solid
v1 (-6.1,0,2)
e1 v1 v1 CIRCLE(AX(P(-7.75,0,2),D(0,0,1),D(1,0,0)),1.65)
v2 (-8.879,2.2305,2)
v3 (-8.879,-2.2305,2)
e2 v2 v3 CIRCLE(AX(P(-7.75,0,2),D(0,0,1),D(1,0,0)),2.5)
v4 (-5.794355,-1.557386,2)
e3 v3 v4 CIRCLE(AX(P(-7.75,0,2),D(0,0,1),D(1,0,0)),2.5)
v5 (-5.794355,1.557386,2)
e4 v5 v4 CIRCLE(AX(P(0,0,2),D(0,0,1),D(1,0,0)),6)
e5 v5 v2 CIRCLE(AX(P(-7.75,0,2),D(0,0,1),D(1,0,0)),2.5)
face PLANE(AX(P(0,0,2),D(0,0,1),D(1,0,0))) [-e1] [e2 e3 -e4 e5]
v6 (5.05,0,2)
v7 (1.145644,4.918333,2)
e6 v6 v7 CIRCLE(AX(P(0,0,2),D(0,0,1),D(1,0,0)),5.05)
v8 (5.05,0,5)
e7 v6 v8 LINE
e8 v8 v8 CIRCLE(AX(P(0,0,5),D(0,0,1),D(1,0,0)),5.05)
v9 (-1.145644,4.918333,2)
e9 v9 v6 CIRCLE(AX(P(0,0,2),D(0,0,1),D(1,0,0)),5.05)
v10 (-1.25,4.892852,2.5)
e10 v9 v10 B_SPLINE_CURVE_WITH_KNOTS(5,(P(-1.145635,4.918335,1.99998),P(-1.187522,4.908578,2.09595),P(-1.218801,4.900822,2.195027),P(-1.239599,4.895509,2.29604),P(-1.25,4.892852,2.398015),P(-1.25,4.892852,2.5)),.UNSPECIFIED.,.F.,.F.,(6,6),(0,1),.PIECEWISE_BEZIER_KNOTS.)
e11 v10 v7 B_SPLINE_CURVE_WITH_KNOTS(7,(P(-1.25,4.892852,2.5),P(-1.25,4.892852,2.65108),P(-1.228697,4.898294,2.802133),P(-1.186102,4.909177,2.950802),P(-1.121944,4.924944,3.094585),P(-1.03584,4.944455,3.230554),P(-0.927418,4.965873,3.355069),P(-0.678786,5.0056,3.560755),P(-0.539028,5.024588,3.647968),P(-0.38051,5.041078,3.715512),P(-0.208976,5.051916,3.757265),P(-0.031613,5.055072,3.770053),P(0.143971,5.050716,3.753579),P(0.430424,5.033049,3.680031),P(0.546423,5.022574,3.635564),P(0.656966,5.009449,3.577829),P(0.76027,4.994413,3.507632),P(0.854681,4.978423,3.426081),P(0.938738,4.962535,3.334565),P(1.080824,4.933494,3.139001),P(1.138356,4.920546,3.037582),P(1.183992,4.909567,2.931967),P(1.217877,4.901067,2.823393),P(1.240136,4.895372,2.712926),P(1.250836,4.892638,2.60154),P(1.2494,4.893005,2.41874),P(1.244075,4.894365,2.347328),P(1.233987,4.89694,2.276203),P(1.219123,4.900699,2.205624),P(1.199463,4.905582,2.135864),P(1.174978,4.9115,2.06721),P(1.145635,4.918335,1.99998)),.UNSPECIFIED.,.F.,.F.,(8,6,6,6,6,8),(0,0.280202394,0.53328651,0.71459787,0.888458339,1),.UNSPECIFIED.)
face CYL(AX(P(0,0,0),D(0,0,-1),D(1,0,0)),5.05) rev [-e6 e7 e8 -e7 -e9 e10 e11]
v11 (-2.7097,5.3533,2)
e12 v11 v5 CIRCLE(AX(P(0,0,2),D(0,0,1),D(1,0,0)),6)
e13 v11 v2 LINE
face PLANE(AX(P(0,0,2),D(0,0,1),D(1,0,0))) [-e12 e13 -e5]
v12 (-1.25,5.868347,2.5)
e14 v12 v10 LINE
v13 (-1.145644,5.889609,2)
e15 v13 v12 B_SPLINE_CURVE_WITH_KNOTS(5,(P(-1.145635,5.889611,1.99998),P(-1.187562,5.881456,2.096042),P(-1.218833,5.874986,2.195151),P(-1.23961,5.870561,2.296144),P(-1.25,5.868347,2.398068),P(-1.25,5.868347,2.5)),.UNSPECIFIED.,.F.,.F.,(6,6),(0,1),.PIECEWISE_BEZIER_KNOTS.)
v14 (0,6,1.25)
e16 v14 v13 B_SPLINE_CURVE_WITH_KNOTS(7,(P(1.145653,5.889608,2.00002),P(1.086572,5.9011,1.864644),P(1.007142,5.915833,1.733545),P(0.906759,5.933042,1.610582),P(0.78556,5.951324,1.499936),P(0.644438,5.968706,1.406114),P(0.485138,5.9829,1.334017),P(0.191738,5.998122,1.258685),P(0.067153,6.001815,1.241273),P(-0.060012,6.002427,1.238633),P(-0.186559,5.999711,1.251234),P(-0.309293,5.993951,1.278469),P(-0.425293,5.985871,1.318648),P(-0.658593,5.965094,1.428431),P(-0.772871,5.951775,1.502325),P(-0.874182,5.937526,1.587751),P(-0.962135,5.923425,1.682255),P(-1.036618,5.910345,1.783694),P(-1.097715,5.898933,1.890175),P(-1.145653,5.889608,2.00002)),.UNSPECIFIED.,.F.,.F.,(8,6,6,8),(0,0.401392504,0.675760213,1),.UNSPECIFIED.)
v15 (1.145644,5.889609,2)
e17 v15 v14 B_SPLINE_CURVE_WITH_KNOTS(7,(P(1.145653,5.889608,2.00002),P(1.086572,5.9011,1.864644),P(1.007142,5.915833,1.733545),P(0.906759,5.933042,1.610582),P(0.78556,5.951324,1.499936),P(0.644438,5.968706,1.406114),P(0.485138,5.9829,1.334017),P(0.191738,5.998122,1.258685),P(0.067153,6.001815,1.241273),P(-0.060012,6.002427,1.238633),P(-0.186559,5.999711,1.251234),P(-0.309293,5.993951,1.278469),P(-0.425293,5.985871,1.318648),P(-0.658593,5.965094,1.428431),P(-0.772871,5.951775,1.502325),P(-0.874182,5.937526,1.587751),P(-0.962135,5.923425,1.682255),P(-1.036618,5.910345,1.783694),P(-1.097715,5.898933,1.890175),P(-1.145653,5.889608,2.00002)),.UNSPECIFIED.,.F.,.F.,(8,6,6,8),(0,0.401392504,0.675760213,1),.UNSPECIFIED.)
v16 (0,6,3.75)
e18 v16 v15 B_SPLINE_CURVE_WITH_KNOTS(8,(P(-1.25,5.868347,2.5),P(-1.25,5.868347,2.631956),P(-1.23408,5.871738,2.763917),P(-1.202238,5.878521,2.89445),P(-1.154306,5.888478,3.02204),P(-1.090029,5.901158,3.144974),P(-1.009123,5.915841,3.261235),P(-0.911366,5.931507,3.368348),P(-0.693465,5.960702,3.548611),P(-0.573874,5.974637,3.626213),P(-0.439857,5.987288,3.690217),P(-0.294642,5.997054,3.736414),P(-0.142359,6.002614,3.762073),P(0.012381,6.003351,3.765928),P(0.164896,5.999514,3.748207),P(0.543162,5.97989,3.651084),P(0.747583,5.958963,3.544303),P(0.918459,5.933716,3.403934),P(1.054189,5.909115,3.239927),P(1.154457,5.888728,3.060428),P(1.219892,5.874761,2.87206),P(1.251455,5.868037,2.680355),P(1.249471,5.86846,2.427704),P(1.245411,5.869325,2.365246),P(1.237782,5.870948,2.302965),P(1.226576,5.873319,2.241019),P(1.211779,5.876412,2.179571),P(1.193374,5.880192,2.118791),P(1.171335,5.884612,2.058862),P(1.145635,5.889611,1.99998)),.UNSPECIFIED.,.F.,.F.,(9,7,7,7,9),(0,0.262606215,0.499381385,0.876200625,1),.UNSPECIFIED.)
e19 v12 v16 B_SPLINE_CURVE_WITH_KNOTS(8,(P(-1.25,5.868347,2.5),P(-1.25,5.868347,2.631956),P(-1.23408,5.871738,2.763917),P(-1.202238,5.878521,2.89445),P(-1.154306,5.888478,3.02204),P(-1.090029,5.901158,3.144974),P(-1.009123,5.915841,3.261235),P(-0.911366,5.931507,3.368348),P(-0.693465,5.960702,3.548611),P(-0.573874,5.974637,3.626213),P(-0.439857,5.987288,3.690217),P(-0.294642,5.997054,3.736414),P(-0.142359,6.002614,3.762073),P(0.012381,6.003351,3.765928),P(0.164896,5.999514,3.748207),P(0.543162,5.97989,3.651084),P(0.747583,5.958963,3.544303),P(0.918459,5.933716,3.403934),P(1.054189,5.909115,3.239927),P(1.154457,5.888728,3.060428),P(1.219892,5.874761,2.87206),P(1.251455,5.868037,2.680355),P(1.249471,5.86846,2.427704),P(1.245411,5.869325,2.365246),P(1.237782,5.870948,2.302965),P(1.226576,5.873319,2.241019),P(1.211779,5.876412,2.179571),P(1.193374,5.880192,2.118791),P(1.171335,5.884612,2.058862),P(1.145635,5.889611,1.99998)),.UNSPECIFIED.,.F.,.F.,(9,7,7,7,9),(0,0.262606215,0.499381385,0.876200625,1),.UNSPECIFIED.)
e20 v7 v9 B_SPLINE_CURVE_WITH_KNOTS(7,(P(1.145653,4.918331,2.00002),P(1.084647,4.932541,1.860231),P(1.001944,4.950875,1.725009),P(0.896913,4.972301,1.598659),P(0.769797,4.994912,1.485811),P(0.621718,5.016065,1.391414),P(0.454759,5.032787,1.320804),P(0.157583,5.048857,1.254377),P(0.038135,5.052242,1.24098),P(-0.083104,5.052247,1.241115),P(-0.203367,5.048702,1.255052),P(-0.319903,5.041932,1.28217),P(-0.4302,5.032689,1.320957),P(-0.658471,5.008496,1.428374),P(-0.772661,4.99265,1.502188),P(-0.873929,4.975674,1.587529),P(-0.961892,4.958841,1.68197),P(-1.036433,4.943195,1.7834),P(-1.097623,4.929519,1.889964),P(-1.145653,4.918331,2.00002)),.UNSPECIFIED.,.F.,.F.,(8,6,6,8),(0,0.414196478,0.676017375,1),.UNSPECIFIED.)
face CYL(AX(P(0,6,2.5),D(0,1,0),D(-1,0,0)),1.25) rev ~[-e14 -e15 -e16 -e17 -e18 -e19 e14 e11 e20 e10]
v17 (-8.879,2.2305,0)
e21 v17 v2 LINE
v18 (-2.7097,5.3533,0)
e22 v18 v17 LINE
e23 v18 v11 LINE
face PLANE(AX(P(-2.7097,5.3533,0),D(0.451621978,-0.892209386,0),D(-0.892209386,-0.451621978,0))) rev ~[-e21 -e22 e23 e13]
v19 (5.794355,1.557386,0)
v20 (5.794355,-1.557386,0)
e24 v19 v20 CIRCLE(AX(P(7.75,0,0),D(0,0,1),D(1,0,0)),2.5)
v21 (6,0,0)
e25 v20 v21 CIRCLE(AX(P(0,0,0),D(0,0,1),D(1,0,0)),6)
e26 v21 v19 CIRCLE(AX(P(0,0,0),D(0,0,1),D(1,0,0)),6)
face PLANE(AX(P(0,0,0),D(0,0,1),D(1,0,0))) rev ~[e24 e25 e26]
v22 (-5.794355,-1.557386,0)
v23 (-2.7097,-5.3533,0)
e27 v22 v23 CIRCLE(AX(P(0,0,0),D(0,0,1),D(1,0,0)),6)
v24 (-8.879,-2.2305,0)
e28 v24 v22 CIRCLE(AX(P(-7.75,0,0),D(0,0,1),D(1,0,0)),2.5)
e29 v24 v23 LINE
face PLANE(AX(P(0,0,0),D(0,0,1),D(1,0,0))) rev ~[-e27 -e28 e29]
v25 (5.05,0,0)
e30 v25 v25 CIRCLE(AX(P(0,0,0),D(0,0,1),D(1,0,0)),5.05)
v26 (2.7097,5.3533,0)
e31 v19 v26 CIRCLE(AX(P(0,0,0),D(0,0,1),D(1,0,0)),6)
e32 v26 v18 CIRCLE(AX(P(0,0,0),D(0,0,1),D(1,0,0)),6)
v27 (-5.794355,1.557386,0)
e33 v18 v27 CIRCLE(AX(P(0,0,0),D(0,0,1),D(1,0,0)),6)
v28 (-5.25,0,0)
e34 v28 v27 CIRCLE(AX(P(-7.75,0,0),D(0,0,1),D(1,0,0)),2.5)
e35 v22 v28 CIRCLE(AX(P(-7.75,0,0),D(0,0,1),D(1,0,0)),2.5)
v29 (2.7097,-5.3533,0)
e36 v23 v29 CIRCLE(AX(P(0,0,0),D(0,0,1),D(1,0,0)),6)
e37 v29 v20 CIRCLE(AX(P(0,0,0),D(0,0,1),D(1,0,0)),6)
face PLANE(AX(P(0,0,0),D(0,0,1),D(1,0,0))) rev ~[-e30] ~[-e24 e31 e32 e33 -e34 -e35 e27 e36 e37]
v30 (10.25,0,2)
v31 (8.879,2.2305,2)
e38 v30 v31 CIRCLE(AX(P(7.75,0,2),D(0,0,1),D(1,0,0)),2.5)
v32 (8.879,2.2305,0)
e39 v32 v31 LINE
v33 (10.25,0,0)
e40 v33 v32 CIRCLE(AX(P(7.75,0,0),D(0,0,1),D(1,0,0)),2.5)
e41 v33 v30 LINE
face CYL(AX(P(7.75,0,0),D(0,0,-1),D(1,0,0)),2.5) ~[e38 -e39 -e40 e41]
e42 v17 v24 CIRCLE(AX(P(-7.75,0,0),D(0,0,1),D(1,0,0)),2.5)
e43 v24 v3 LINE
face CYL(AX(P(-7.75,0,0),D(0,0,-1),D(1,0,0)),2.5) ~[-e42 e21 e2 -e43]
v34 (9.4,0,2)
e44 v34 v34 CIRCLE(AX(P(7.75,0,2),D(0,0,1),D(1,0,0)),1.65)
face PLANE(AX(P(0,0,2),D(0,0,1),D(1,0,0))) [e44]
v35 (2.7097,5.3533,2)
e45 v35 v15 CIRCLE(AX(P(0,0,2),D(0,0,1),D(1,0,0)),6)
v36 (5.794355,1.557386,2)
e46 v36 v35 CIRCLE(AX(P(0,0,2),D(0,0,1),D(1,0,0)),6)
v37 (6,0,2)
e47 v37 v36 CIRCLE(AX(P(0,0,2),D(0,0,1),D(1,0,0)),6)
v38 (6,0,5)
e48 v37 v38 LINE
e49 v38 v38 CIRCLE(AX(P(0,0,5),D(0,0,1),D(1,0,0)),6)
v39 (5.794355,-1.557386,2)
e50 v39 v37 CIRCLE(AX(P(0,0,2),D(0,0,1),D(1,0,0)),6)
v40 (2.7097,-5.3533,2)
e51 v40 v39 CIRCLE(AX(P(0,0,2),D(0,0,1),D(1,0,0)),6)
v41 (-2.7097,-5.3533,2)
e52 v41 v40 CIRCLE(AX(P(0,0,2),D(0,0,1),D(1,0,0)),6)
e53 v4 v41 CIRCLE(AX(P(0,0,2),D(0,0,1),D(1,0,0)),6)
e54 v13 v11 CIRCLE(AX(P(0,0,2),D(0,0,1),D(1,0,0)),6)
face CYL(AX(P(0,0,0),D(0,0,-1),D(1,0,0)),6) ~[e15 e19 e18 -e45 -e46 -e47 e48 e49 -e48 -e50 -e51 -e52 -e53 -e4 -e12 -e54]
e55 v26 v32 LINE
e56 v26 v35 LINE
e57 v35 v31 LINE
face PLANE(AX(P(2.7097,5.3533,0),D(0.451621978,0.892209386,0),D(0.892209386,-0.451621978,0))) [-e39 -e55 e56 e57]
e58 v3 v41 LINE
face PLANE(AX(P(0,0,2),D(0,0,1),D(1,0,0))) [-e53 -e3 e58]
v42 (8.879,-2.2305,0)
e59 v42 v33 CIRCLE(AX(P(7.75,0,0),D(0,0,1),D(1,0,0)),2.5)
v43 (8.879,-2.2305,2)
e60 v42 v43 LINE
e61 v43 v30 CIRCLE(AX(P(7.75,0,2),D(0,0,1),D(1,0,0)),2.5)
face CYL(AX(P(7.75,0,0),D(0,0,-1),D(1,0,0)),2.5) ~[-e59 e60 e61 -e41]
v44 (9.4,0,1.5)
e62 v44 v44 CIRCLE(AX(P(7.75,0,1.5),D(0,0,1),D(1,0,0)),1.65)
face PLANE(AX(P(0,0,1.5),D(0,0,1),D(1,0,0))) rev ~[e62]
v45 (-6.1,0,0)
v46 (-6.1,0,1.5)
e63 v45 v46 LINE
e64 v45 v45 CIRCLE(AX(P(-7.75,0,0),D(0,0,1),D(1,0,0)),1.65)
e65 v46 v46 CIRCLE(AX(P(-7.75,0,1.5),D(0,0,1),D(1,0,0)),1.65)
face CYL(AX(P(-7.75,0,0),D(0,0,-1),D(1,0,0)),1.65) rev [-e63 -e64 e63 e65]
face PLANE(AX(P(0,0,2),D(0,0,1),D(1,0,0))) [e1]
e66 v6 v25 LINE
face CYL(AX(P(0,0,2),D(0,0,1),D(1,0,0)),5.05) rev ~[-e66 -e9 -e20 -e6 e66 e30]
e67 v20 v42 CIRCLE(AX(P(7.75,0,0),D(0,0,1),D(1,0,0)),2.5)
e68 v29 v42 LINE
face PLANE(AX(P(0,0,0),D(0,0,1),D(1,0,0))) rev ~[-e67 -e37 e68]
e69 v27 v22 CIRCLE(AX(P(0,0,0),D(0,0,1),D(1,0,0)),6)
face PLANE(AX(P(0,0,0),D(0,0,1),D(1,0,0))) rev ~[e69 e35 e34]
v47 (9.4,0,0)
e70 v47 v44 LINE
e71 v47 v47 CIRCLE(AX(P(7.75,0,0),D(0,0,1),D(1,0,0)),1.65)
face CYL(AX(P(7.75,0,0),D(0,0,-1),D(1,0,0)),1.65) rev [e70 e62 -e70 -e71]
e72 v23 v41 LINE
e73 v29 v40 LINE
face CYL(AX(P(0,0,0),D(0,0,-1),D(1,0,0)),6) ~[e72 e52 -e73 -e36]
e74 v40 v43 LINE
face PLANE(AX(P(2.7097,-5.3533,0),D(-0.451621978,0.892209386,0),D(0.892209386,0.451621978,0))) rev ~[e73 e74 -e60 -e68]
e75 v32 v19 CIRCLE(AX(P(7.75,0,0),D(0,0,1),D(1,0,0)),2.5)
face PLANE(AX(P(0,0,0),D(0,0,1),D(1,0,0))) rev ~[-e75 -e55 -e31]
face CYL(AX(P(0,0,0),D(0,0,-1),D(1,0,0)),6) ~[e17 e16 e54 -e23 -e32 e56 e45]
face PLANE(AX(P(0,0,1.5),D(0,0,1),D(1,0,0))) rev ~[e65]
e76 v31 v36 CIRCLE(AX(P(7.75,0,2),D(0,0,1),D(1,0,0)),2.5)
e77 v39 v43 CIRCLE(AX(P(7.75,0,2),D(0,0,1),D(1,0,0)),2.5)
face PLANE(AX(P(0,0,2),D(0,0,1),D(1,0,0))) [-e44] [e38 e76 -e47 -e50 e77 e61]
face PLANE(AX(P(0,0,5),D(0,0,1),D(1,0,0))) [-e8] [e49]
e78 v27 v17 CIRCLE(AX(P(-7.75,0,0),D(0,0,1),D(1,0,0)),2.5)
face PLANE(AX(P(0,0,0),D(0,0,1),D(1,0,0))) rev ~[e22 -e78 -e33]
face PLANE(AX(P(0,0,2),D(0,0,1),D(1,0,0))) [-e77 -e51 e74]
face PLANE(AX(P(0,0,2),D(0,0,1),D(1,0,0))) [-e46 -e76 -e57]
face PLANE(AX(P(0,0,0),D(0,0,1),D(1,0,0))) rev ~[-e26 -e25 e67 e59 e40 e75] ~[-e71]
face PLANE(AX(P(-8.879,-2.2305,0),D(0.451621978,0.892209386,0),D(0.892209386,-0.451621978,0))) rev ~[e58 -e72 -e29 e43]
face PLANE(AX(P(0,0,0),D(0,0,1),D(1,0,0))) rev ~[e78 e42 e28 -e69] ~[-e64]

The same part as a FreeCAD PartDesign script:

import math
import FreeCAD as App
import Part
import Sketcher
from FreeCAD import Vector
Q = App.Units.Quantity

doc = App.newDocument("Part")
body = doc.addObject("PartDesign::Body", "Body")

sketch1 = doc.addObject("Sketcher::SketchObject", "Sketch")
body.addObject(sketch1)
sketch1.AttachmentSupport = (doc.XY_Plane, [""])
sketch1.MapMode = "FlatFace"
sketch1.addGeometry([
    Part.Circle(Vector(0, 0, 0), Vector(0, 0, 1), 6),
    Part.Circle(Vector(0, 0, 0), Vector(0, 0, 1), 5),
], False)
sketch1.addConstraint([
    Sketcher.Constraint("Coincident", 0, 3, -1, 1),
    Sketcher.Constraint("Coincident", 1, 3, -1, 1),
    Sketcher.Constraint("Diameter", 0, Q("12 mm")),
    Sketcher.Constraint("Diameter", 1, Q("10.1 mm")),
])
pad1 = doc.addObject("PartDesign::Pad", "Pad")
body.addObject(pad1)
pad1.Profile = sketch1
pad1.Length = 5

sketch2 = doc.addObject("Sketcher::SketchObject", "Sketch001")
body.addObject(sketch2)
sketch2.AttachmentSupport = (doc.XY_Plane, [""])
sketch2.MapMode = "FlatFace"
sketch2.addGeometry([
    Part.ArcOfCircle(Part.Circle(Vector(0, 0, 0), Vector(0, 0, 1), 6), math.radians(63), math.radians(117)),
    Part.LineSegment(Vector(-2.7, 5.4, 0), Vector(-8.9, 2.2, 0)),
    Part.ArcOfCircle(Part.Circle(Vector(-7.8, 0, 0), Vector(0, 0, 1), 2.5), math.radians(117), math.radians(243)),
    Part.LineSegment(Vector(-8.9, -2.2, 0), Vector(-2.7, -5.4, 0)),
    Part.ArcOfCircle(Part.Circle(Vector(0, 0, 0), Vector(0, 0, 1), 6), math.radians(-117), math.radians(-63)),
    Part.LineSegment(Vector(2.7, -5.4, 0), Vector(8.9, -2.2, 0)),
    Part.ArcOfCircle(Part.Circle(Vector(7.8, 0, 0), Vector(0, 0, 1), 2.5), math.radians(-63), math.radians(63)),
    Part.LineSegment(Vector(8.9, 2.2, 0), Vector(2.7, 5.4, 0)),
    Part.Circle(Vector(-7.8, 0, 0), Vector(0, 0, 1), 1.6),
    Part.Circle(Vector(7.8, 0, 0), Vector(0, 0, 1), 1.6),
], False)
sketch2.addConstraint([
    Sketcher.Constraint("Tangent", 0, 2, 1, 1),
    Sketcher.Constraint("Tangent", 1, 2, 2, 1),
    Sketcher.Constraint("Tangent", 2, 2, 3, 1),
    Sketcher.Constraint("Tangent", 3, 2, 4, 1),
    Sketcher.Constraint("Tangent", 4, 2, 5, 1),
    Sketcher.Constraint("Tangent", 5, 2, 6, 1),
    Sketcher.Constraint("Tangent", 6, 2, 7, 1),
    Sketcher.Constraint("Tangent", 7, 2, 0, 1),
    Sketcher.Constraint("Coincident", 0, 3, -1, 1),
    Sketcher.Constraint("Coincident", 4, 3, -1, 1),
    Sketcher.Constraint("Coincident", 8, 3, 2, 3),
    Sketcher.Constraint("Coincident", 9, 3, 6, 3),
    Sketcher.Constraint("Equal", 0, 4),
    Sketcher.Constraint("Equal", 2, 6),
    Sketcher.Constraint("Equal", 8, 9),
    Sketcher.Constraint("Symmetric", 2, 3, 6, 3, -1, 1),
    Sketcher.Constraint("PointOnObject", 2, 3, -1),
    Sketcher.Constraint("Radius", 0, Q("6 mm")),
    Sketcher.Constraint("Diameter", 8, Q("3.3 mm")),
    Sketcher.Constraint("Radius", 2, Q("2.5 mm")),
    Sketcher.Constraint("DistanceX", 2, 3, -1, 1, Q("7.75 mm")),
])
pad2 = doc.addObject("PartDesign::Pad", "Pad001")
body.addObject(pad2)
pad2.Profile = sketch2
pad2.Length = 2

sketch3 = doc.addObject("Sketcher::SketchObject", "Sketch002")
body.addObject(sketch3)
sketch3.AttachmentSupport = (doc.XY_Plane, [""])
sketch3.MapMode = "FlatFace"
sketch3.AttachmentOffset = App.Placement(Vector(0, 0, 2), App.Rotation())
sketch3.addGeometry(Part.Circle(Vector(0, 0, 0), Vector(0, 0, 1), 5), False)
sketch3.addConstraint([
    Sketcher.Constraint("Coincident", 0, 3, -1, 1),
    Sketcher.Constraint("Diameter", 0, Q("10.1 mm")),
])
pocket1 = doc.addObject("PartDesign::Pocket", "Pocket")
body.addObject(pocket1)
pocket1.Profile = sketch3
pocket1.Type = "ThroughAll"

sketch4 = doc.addObject("Sketcher::SketchObject", "Sketch003")
body.addObject(sketch4)
sketch4.AttachmentSupport = (doc.XY_Plane, [""])
sketch4.MapMode = "FlatFace"
sketch4.AttachmentOffset = App.Placement(Vector(0, 0, 2), App.Rotation())
sketch4.addGeometry([
    Part.Circle(Vector(-7.8, 0, 0), Vector(0, 0, 1), 1.6),
    Part.Circle(Vector(7.8, 0, 0), Vector(0, 0, 1), 1.6),
], False)
sketch4.addConstraint([
    Sketcher.Constraint("Equal", 0, 1),
    Sketcher.Constraint("Symmetric", 0, 3, 1, 3, -1, 1),
    Sketcher.Constraint("PointOnObject", 0, 3, -1),
    Sketcher.Constraint("Diameter", 0, Q("3.3 mm")),
    Sketcher.Constraint("DistanceX", 0, 3, 1, 3, Q("15.5 mm")),
])
pad3 = doc.addObject("PartDesign::Pad", "Pad002")
body.addObject(pad3)
pad3.Profile = sketch4
pad3.Length = 0.5
pad3.Reversed = True

sketch5 = doc.addObject("Sketcher::SketchObject", "Sketch004")
body.addObject(sketch5)
sketch5.AttachmentSupport = (doc.XZ_Plane, [""])
sketch5.MapMode = "FlatFace"
sketch5.AttachmentOffset = App.Placement(Vector(0, 0, -6), App.Rotation())
sketch5.addGeometry(Part.Circle(Vector(0, 2.5, 0), Vector(0, 0, 1), 1.2), False)
sketch5.addConstraint([
    Sketcher.Constraint("PointOnObject", 0, 3, -2),
    Sketcher.Constraint("Diameter", 0, Q("2.5 mm")),
    Sketcher.Constraint("DistanceY", -1, 1, 0, 3, Q("2.5 mm")),
])
pocket2 = doc.addObject("PartDesign::Pocket", "Pocket001")
body.addObject(pocket2)
pocket2.Profile = sketch5
pocket2.Length = 3
pocket2.Reversed = True

doc.recompute()
